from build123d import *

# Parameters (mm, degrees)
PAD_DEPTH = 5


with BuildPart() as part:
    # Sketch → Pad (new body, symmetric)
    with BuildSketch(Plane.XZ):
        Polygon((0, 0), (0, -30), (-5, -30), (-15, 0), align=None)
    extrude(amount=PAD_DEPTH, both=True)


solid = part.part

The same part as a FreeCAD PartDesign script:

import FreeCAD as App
import Part
import Sketcher

V = App.Vector

doc = App.newDocument("Part")
params = doc.addObject("Spreadsheet::Sheet", "Params")
for row, (alias, value) in enumerate([
    ("sketch1_width", "15 mm"),
    ("sketch1_width2", "5 mm"),
    ("sketch1_height", "30 mm"),
    ("pad1_length", "10 mm"),
], start=1):
    params.set(f"A{row}", alias)
    params.set(f"B{row}", "=" + value)
    params.setAlias(f"B{row}", alias)

body = doc.addObject("PartDesign::Body", "Body")

# Sketch on XZ plane
sketch1 = body.newObject("Sketcher::SketchObject", "Sketch")
sketch1.AttachmentSupport = (doc.getObject("XZ_Plane"), [""])
sketch1.MapMode = "FlatFace"
sketch1.addGeometry(Part.LineSegment(V(0, -30, 0), V(0, 0, 0)), False)
sketch1.addGeometry(Part.LineSegment(V(0, 0, 0), V(-15, 0, 0)), False)
sketch1.addGeometry(Part.LineSegment(V(-15, 0, 0), V(-5, -30, 0)), False)
sketch1.addGeometry(Part.LineSegment(V(-5, -30, 0), V(0, -30, 0)), False)
sketch1.addConstraint(Sketcher.Constraint("Coincident", 0, 2, 1, 1))
sketch1.addConstraint(Sketcher.Constraint("Coincident", 1, 2, 2, 1))
sketch1.addConstraint(Sketcher.Constraint("Coincident", 2, 2, 3, 1))
sketch1.addConstraint(Sketcher.Constraint("Coincident", 3, 2, 0, 1))
sketch1.addConstraint(Sketcher.Constraint("Vertical", 0))
sketch1.addConstraint(Sketcher.Constraint("Horizontal", 1))
sketch1.addConstraint(Sketcher.Constraint("Horizontal", 3))
sketch1.addConstraint(Sketcher.Constraint("Coincident", 0, 2, -1, 1))
sketch1.addConstraint(Sketcher.Constraint("DistanceX", 1, 2, 1, 1, 15.0))
sketch1.addConstraint(Sketcher.Constraint("DistanceX", 3, 1, 3, 2, 5.0))
sketch1.addConstraint(Sketcher.Constraint("DistanceY", 0, 1, 0, 2, 30.0))
sketch1.setExpression("Constraints[8]", "Params.sketch1_width")
sketch1.setExpression("Constraints[9]", "Params.sketch1_width2")
sketch1.setExpression("Constraints[10]", "Params.sketch1_height")
pad1 = body.newObject("PartDesign::Pad", "Pad")
pad1.Profile = sketch1
pad1.setExpression("Length", "Params.pad1_length")
pad1.Midplane = True

doc.recompute()
